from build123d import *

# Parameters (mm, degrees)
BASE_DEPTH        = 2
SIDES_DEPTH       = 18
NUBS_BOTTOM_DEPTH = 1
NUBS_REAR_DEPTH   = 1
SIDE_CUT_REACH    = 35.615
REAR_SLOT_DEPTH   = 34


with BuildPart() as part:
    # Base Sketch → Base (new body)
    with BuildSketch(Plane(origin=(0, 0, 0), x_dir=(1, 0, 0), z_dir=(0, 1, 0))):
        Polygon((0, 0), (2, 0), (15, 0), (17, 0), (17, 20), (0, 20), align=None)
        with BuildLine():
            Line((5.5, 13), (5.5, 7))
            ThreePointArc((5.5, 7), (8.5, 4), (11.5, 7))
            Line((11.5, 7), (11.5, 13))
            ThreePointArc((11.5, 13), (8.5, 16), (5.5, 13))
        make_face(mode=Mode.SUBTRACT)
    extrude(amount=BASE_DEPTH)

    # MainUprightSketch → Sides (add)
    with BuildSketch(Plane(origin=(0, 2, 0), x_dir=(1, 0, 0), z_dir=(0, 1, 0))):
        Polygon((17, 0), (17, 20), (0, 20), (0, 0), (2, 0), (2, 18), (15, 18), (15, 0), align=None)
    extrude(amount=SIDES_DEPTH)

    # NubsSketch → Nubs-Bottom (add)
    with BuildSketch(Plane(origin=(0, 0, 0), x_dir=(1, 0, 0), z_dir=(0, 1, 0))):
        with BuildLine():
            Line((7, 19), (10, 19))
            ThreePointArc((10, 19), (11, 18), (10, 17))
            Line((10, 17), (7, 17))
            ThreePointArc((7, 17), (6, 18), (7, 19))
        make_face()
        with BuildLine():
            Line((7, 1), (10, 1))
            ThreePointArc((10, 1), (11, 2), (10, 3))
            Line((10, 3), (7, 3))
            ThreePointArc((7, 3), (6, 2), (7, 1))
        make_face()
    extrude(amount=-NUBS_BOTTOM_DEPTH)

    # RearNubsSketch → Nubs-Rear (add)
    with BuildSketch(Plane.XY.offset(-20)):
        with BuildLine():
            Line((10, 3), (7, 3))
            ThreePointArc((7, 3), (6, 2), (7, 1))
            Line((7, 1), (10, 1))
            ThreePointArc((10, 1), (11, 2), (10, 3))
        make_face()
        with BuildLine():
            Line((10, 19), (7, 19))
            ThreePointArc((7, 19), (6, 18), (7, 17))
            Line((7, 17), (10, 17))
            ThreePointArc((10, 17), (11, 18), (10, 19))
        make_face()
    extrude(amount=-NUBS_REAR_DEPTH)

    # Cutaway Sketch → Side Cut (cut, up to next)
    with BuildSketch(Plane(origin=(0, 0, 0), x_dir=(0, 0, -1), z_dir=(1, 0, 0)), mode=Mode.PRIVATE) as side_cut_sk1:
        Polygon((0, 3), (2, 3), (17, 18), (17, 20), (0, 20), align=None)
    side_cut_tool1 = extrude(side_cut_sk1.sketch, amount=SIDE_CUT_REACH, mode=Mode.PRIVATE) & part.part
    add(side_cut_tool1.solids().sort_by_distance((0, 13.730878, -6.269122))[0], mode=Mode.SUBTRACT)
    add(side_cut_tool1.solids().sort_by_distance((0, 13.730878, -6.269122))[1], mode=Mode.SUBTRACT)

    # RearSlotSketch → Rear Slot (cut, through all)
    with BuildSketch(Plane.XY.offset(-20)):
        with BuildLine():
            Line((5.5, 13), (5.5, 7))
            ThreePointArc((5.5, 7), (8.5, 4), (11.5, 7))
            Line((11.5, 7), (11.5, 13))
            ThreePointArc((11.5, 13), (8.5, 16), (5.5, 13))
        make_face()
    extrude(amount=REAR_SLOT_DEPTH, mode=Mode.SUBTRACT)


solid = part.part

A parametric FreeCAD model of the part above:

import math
import FreeCAD as App
import Part
import Sketcher

doc = App.newDocument("Part")
body = doc.addObject("PartDesign::Body", "Body")

# Sketch on XZ plane
sketch1 = doc.addObject("Sketcher::SketchObject", "Sketch")
body.addObject(sketch1)
sketch1.AttachmentSupport = (doc.XZ_Plane, [""])
sketch1.MapMode = "FlatFace"
sketch1.addGeometry([
    Part.LineSegment(App.Vector(0, 0, 0), App.Vector(17, 0, 0)),  # 0
    Part.LineSegment(App.Vector(17, 0, 0), App.Vector(17, -20, 0)),  # 1
    Part.LineSegment(App.Vector(17, -20, 0), App.Vector(0, -20, 0)),  # 2
    Part.LineSegment(App.Vector(0, -20, 0), App.Vector(0, 0, 0)),  # 3
    Part.LineSegment(App.Vector(5.5, -7, 0), App.Vector(5.5, -13, 0)),  # 4
    Part.ArcOfCircle(Part.Circle(App.Vector(8.5, -13, 0), App.Vector(0, 0, 1), 3), math.radians(180), math.radians(360)),  # 5
    Part.LineSegment(App.Vector(11.5, -13, 0), App.Vector(11.5, -7, 0)),  # 6
    Part.ArcOfCircle(Part.Circle(App.Vector(8.5, -7, 0), App.Vector(0, 0, 1), 3), math.radians(0), math.radians(180)),  # 7
], False)
sketch1.addConstraint([
    Sketcher.Constraint("Coincident", 0, 2, 1, 1),
    Sketcher.Constraint("Coincident", 1, 2, 2, 1),
    Sketcher.Constraint("Coincident", 2, 2, 3, 1),
    Sketcher.Constraint("Coincident", 3, 2, 0, 1),
    Sketcher.Constraint("Tangent", 4, 2, 5, 1),
    Sketcher.Constraint("Tangent", 5, 2, 6, 1),
    Sketcher.Constraint("Tangent", 6, 2, 7, 1),
    Sketcher.Constraint("Tangent", 7, 2, 4, 1),
    Sketcher.Constraint("Horizontal", 0),
    Sketcher.Constraint("Vertical", 1),
    Sketcher.Constraint("Horizontal", 2),
    Sketcher.Constraint("Vertical", 3),
    Sketcher.Constraint("Vertical", 4),
    Sketcher.Constraint("Vertical", 6),
    Sketcher.Constraint("Coincident", 3, 2, -1, 1),
    Sketcher.Constraint("Radius", 5, 3.0),
    Sketcher.Constraint("DistanceX", 0, 1, 0, 2, 17.0),
    Sketcher.Constraint("DistanceY", 1, 2, 1, 1, 20.0),
    Sketcher.Constraint("DistanceY", 4, 2, 4, 1, 6.0),
    Sketcher.Constraint("DistanceY", 5, 3, -1, 1, 13.0),
    Sketcher.Constraint("DistanceX", -1, 1, 5, 3, 8.5),
])
pad1 = doc.addObject("PartDesign::Pad", "Pad")
body.addObject(pad1)
pad1.Profile = sketch1
pad1.Length = 2
pad1.Reversed = True

# Sketch on XZ plane
sketch2 = doc.addObject("Sketcher::SketchObject", "Sketch001")
body.addObject(sketch2)
sketch2.AttachmentSupport = (doc.XZ_Plane, [""])
sketch2.MapMode = "FlatFace"
sketch2.AttachmentOffset = App.Placement(App.Vector(0, 0, -2), App.Rotation())
sketch2.addGeometry([
    Part.LineSegment(App.Vector(17, 0, 0), App.Vector(17, -20, 0)),  # 0
    Part.LineSegment(App.Vector(17, -20, 0), App.Vector(0, -20, 0)),  # 1
    Part.LineSegment(App.Vector(0, -20, 0), App.Vector(0, 0, 0)),  # 2
    Part.LineSegment(App.Vector(0, 0, 0), App.Vector(2, 0, 0)),  # 3
    Part.LineSegment(App.Vector(2, 0, 0), App.Vector(2, -18, 0)),  # 4
    Part.LineSegment(App.Vector(2, -18, 0), App.Vector(15, -18, 0)),  # 5
    Part.LineSegment(App.Vector(15, -18, 0), App.Vector(15, 0, 0)),  # 6
    Part.LineSegment(App.Vector(15, 0, 0), App.Vector(17, 0, 0)),  # 7
], False)
sketch2.addConstraint([
    Sketcher.Constraint("Coincident", 0, 2, 1, 1),
    Sketcher.Constraint("Coincident", 1, 2, 2, 1),
    Sketcher.Constraint("Coincident", 2, 2, 3, 1),
    Sketcher.Constraint("Coincident", 3, 2, 4, 1),
    Sketcher.Constraint("Coincident", 4, 2, 5, 1),
    Sketcher.Constraint("Coincident", 5, 2, 6, 1),
    Sketcher.Constraint("Coincident", 6, 2, 7, 1),
    Sketcher.Constraint("Coincident", 7, 2, 0, 1),
    Sketcher.Constraint("Vertical", 0),
    Sketcher.Constraint("Horizontal", 1),
    Sketcher.Constraint("Vertical", 2),
    Sketcher.Constraint("Horizontal", 3),
    Sketcher.Constraint("Vertical", 4),
    Sketcher.Constraint("Horizontal", 5),
    Sketcher.Constraint("Vertical", 6),
    Sketcher.Constraint("Horizontal", 7),
    Sketcher.Constraint("Coincident", 2, 2, -1, 1),
    Sketcher.Constraint("PointOnObject", 6, 2, -1),
    Sketcher.Constraint("Equal", 3, 7),
    Sketcher.Constraint("DistanceX", 1, 2, 1, 1, 17.0),
    Sketcher.Constraint("DistanceX", 3, 1, 3, 2, 2.0),
    Sketcher.Constraint("DistanceY", 0, 2, 0, 1, 20.0),
    Sketcher.Constraint("DistanceY", 4, 2, 4, 1, 18.0),
])
pad2 = doc.addObject("PartDesign::Pad", "Pad001")
body.addObject(pad2)
pad2.Profile = sketch2
pad2.Length = 18
pad2.Reversed = True

# Sketch on XZ plane
sketch3 = doc.addObject("Sketcher::SketchObject", "Sketch002")
body.addObject(sketch3)
sketch3.AttachmentSupport = (doc.XZ_Plane, [""])
sketch3.MapMode = "FlatFace"
sketch3.addGeometry([
    Part.LineSegment(App.Vector(10, -19, 0), App.Vector(7, -19, 0)),  # 0
    Part.ArcOfCircle(Part.Circle(App.Vector(7, -18, 0), App.Vector(0, 0, 1), 1), math.radians(90), math.radians(270)),  # 1
    Part.LineSegment(App.Vector(7, -17, 0), App.Vector(10, -17, 0)),  # 2
    Part.ArcOfCircle(Part.Circle(App.Vector(10, -18, 0), App.Vector(0, 0, 1), 1), math.radians(-90), math.radians(90)),  # 3
    Part.LineSegment(App.Vector(7, -1, 0), App.Vector(10, -1, 0)),  # 4
    Part.ArcOfCircle(Part.Circle(App.Vector(10, -2, 0), App.Vector(0, 0, 1), 1), math.radians(-90), math.radians(90)),  # 5
    Part.LineSegment(App.Vector(10, -3, 0), App.Vector(7, -3, 0)),  # 6
    Part.ArcOfCircle(Part.Circle(App.Vector(7, -2, 0), App.Vector(0, 0, 1), 1), math.radians(90), math.radians(270)),  # 7
], False)
sketch3.addConstraint([
    Sketcher.Constraint("Tangent", 0, 2, 1, 2),
    Sketcher.Constraint("Tangent", 1, 1, 2, 1),
    Sketcher.Constraint("Tangent", 2, 2, 3, 2),
    Sketcher.Constraint("Tangent", 3, 1, 0, 1),
    Sketcher.Constraint("Tangent", 4, 2, 5, 2),
    Sketcher.Constraint("Tangent", 5, 1, 6, 1),
    Sketcher.Constraint("Tangent", 6, 2, 7, 2),
    Sketcher.Constraint("Tangent", 7, 1, 4, 1),
    Sketcher.Constraint("Horizontal", 0),
    Sketcher.Constraint("Horizontal", 2),
    Sketcher.Constraint("Horizontal", 4),
    Sketcher.Constraint("Horizontal", 6),
    Sketcher.Constraint("Equal", 3, 5),
    Sketcher.Constraint("Vertical", 3, 3, 5, 3),
    Sketcher.Constraint("Vertical", 1, 3, 7, 3),
    Sketcher.Constraint("Radius", 1, 1.0),
    Sketcher.Constraint("DistanceX", 0, 2, 0, 1, 3.0),
    Sketcher.Constraint("DistanceX", -1, 1, 1, 3, 7.0),
    Sketcher.Constraint("DistanceY", 1, 3, -1, 1, 18.0),
    Sketcher.Constraint("DistanceY", 5, 3, -1, 1, 2.0),
])
pad3 = doc.addObject("PartDesign::Pad", "Pad002")
body.addObject(pad3)
pad3.Profile = sketch3
pad3.Length = 1

# Sketch on XY plane
sketch4 = doc.addObject("Sketcher::SketchObject", "Sketch003")
body.addObject(sketch4)
sketch4.AttachmentSupport = (doc.XY_Plane, [""])
sketch4.MapMode = "FlatFace"
sketch4.AttachmentOffset = App.Placement(App.Vector(0, 0, -20), App.Rotation())
sketch4.addGeometry([
    Part.LineSegment(App.Vector(10, 3, 0), App.Vector(7, 3, 0)),  # 0
    Part.ArcOfCircle(Part.Circle(App.Vector(7, 2, 0), App.Vector(0, 0, 1), 1), math.radians(90), math.radians(270)),  # 1
    Part.LineSegment(App.Vector(7, 1, 0), App.Vector(10, 1, 0)),  # 2
    Part.ArcOfCircle(Part.Circle(App.Vector(10, 2, 0), App.Vector(0, 0, 1), 1), math.radians(-90), math.radians(90)),  # 3
    Part.LineSegment(App.Vector(10, 19, 0), App.Vector(7, 19, 0)),  # 4
    Part.ArcOfCircle(Part.Circle(App.Vector(7, 18, 0), App.Vector(0, 0, 1), 1), math.radians(90), math.radians(270)),  # 5
    Part.LineSegment(App.Vector(7, 17, 0), App.Vector(10, 17, 0)),  # 6
    Part.ArcOfCircle(Part.Circle(App.Vector(10, 18, 0), App.Vector(0, 0, 1), 1), math.radians(-90), math.radians(90)),  # 7
], False)
sketch4.addConstraint([
    Sketcher.Constraint("Tangent", 0, 2, 1, 1),
    Sketcher.Constraint("Tangent", 1, 2, 2, 1),
    Sketcher.Constraint("Tangent", 2, 2, 3, 1),
    Sketcher.Constraint("Tangent", 3, 2, 0, 1),
    Sketcher.Constraint("Tangent", 4, 2, 5, 1),
    Sketcher.Constraint("Tangent", 5, 2, 6, 1),
    Sketcher.Constraint("Tangent", 6, 2, 7, 1),
    Sketcher.Constraint("Tangent", 7, 2, 4, 1),
    Sketcher.Constraint("Horizontal", 0),
    Sketcher.Constraint("Horizontal", 2),
    Sketcher.Constraint("Horizontal", 4),
    Sketcher.Constraint("Horizontal", 6),
    Sketcher.Constraint("Equal", 3, 5),
    Sketcher.Constraint("Vertical", 1, 3, 5, 3),
    Sketcher.Constraint("Vertical", 3, 3, 7, 3),
    Sketcher.Constraint("Radius", 1, 1.0),
    Sketcher.Constraint("DistanceX", 0, 2, 0, 1, 3.0),
    Sketcher.Constraint("DistanceX", -1, 1, 1, 3, 7.0),
    Sketcher.Constraint("DistanceY", -1, 1, 1, 3, 2.0),
    Sketcher.Constraint("DistanceY", -1, 1, 5, 3, 18.0),
])
pad4 = doc.addObject("PartDesign::Pad", "Pad003")
body.addObject(pad4)
pad4.Profile = sketch4
pad4.Length = 1
pad4.Reversed = True

# Sketch on YZ plane
sketch5 = doc.addObject("Sketcher::SketchObject", "Sketch004")
body.addObject(sketch5)
sketch5.AttachmentSupport = (doc.YZ_Plane, [""])
sketch5.MapMode = "FlatFace"
sketch5.addGeometry([
    Part.LineSegment(App.Vector(3, 0, 0), App.Vector(3, -2, 0)),  # 0
    Part.LineSegment(App.Vector(3, -2, 0), App.Vector(18, -17, 0)),  # 1
    Part.LineSegment(App.Vector(18, -17, 0), App.Vector(20, -17, 0)),  # 2
    Part.LineSegment(App.Vector(20, -17, 0), App.Vector(20, 0, 0)),  # 3
    Part.LineSegment(App.Vector(20, 0, 0), App.Vector(3, 0, 0)),  # 4
], False)
sketch5.addConstraint([
    Sketcher.Constraint("Coincident", 0, 2, 1, 1),
    Sketcher.Constraint("Coincident", 1, 2, 2, 1),
    Sketcher.Constraint("Coincident", 2, 2, 3, 1),
    Sketcher.Constraint("Coincident", 3, 2, 4, 1),
    Sketcher.Constraint("Coincident", 4, 2, 0, 1),
    Sketcher.Constraint("Vertical", 0),
    Sketcher.Constraint("Horizontal", 2),
    Sketcher.Constraint("Vertical", 3),
    Sketcher.Constraint("Horizontal", 4),
    Sketcher.Constraint("PointOnObject", 3, 2, -1),
    Sketcher.Constraint("Equal", 2, 0),
    Sketcher.Constraint("Equal", 4, 3),
    Sketcher.Constraint("DistanceX", 2, 1, 2, 2, 2.0),
    Sketcher.Constraint("DistanceX", 4, 2, 4, 1, 17.0),
    Sketcher.Constraint("DistanceX", -1, 1, 0, 2, 3.0),
])
pocket1 = doc.addObject("PartDesign::Pocket", "Pocket")
body.addObject(pocket1)
pocket1.Profile = sketch5
pocket1.Type = "UpToFirst"
pocket1.Reversed = True
pocket2 = doc.addObject("PartDesign::Pocket", "Pocket001")
body.addObject(pocket2)
pocket2.Profile = sketch5
pocket2.Length = 17
pocket2.Reversed = True

# Sketch on XY plane
sketch6 = doc.addObject("Sketcher::SketchObject", "Sketch005")
body.addObject(sketch6)
sketch6.AttachmentSupport = (doc.XY_Plane, [""])
sketch6.MapMode = "FlatFace"
sketch6.AttachmentOffset = App.Placement(App.Vector(0, 0, -20), App.Rotation())
sketch6.addGeometry([
    Part.LineSegment(App.Vector(5.5, 13, 0), App.Vector(5.5, 7, 0)),
    Part.ArcOfCircle(Part.Circle(App.Vector(8.5, 7, 0), App.Vector(0, 0, 1), 3), math.radians(180), math.radians(360)),
    Part.LineSegment(App.Vector(11.5, 7, 0), App.Vector(11.5, 13, 0)),
    Part.ArcOfCircle(Part.Circle(App.Vector(8.5, 13, 0), App.Vector(0, 0, 1), 3), math.radians(0), math.radians(180)),
], False)
sketch6.addConstraint([
    Sketcher.Constraint("Tangent", 0, 2, 1, 1),
    Sketcher.Constraint("Tangent", 1, 2, 2, 1),
    Sketcher.Constraint("Tangent", 2, 2, 3, 1),
    Sketcher.Constraint("Tangent", 3, 2, 0, 1),
    Sketcher.Constraint("Vertical", 0),
    Sketcher.Constraint("Vertical", 2),
    Sketcher.Constraint("Radius", 1, 3.0),
    Sketcher.Constraint("DistanceY", 0, 2, 0, 1, 6.0),
    Sketcher.Constraint("DistanceY", -1, 1, 1, 3, 7.0),
    Sketcher.Constraint("DistanceX", -1, 1, 1, 3, 8.5),
])
pocket3 = doc.addObject("PartDesign::Pocket", "Pocket002")
body.addObject(pocket3)
pocket3.Profile = sketch6
pocket3.Type = "ThroughAll"
pocket3.Reversed = True

doc.recompute()
